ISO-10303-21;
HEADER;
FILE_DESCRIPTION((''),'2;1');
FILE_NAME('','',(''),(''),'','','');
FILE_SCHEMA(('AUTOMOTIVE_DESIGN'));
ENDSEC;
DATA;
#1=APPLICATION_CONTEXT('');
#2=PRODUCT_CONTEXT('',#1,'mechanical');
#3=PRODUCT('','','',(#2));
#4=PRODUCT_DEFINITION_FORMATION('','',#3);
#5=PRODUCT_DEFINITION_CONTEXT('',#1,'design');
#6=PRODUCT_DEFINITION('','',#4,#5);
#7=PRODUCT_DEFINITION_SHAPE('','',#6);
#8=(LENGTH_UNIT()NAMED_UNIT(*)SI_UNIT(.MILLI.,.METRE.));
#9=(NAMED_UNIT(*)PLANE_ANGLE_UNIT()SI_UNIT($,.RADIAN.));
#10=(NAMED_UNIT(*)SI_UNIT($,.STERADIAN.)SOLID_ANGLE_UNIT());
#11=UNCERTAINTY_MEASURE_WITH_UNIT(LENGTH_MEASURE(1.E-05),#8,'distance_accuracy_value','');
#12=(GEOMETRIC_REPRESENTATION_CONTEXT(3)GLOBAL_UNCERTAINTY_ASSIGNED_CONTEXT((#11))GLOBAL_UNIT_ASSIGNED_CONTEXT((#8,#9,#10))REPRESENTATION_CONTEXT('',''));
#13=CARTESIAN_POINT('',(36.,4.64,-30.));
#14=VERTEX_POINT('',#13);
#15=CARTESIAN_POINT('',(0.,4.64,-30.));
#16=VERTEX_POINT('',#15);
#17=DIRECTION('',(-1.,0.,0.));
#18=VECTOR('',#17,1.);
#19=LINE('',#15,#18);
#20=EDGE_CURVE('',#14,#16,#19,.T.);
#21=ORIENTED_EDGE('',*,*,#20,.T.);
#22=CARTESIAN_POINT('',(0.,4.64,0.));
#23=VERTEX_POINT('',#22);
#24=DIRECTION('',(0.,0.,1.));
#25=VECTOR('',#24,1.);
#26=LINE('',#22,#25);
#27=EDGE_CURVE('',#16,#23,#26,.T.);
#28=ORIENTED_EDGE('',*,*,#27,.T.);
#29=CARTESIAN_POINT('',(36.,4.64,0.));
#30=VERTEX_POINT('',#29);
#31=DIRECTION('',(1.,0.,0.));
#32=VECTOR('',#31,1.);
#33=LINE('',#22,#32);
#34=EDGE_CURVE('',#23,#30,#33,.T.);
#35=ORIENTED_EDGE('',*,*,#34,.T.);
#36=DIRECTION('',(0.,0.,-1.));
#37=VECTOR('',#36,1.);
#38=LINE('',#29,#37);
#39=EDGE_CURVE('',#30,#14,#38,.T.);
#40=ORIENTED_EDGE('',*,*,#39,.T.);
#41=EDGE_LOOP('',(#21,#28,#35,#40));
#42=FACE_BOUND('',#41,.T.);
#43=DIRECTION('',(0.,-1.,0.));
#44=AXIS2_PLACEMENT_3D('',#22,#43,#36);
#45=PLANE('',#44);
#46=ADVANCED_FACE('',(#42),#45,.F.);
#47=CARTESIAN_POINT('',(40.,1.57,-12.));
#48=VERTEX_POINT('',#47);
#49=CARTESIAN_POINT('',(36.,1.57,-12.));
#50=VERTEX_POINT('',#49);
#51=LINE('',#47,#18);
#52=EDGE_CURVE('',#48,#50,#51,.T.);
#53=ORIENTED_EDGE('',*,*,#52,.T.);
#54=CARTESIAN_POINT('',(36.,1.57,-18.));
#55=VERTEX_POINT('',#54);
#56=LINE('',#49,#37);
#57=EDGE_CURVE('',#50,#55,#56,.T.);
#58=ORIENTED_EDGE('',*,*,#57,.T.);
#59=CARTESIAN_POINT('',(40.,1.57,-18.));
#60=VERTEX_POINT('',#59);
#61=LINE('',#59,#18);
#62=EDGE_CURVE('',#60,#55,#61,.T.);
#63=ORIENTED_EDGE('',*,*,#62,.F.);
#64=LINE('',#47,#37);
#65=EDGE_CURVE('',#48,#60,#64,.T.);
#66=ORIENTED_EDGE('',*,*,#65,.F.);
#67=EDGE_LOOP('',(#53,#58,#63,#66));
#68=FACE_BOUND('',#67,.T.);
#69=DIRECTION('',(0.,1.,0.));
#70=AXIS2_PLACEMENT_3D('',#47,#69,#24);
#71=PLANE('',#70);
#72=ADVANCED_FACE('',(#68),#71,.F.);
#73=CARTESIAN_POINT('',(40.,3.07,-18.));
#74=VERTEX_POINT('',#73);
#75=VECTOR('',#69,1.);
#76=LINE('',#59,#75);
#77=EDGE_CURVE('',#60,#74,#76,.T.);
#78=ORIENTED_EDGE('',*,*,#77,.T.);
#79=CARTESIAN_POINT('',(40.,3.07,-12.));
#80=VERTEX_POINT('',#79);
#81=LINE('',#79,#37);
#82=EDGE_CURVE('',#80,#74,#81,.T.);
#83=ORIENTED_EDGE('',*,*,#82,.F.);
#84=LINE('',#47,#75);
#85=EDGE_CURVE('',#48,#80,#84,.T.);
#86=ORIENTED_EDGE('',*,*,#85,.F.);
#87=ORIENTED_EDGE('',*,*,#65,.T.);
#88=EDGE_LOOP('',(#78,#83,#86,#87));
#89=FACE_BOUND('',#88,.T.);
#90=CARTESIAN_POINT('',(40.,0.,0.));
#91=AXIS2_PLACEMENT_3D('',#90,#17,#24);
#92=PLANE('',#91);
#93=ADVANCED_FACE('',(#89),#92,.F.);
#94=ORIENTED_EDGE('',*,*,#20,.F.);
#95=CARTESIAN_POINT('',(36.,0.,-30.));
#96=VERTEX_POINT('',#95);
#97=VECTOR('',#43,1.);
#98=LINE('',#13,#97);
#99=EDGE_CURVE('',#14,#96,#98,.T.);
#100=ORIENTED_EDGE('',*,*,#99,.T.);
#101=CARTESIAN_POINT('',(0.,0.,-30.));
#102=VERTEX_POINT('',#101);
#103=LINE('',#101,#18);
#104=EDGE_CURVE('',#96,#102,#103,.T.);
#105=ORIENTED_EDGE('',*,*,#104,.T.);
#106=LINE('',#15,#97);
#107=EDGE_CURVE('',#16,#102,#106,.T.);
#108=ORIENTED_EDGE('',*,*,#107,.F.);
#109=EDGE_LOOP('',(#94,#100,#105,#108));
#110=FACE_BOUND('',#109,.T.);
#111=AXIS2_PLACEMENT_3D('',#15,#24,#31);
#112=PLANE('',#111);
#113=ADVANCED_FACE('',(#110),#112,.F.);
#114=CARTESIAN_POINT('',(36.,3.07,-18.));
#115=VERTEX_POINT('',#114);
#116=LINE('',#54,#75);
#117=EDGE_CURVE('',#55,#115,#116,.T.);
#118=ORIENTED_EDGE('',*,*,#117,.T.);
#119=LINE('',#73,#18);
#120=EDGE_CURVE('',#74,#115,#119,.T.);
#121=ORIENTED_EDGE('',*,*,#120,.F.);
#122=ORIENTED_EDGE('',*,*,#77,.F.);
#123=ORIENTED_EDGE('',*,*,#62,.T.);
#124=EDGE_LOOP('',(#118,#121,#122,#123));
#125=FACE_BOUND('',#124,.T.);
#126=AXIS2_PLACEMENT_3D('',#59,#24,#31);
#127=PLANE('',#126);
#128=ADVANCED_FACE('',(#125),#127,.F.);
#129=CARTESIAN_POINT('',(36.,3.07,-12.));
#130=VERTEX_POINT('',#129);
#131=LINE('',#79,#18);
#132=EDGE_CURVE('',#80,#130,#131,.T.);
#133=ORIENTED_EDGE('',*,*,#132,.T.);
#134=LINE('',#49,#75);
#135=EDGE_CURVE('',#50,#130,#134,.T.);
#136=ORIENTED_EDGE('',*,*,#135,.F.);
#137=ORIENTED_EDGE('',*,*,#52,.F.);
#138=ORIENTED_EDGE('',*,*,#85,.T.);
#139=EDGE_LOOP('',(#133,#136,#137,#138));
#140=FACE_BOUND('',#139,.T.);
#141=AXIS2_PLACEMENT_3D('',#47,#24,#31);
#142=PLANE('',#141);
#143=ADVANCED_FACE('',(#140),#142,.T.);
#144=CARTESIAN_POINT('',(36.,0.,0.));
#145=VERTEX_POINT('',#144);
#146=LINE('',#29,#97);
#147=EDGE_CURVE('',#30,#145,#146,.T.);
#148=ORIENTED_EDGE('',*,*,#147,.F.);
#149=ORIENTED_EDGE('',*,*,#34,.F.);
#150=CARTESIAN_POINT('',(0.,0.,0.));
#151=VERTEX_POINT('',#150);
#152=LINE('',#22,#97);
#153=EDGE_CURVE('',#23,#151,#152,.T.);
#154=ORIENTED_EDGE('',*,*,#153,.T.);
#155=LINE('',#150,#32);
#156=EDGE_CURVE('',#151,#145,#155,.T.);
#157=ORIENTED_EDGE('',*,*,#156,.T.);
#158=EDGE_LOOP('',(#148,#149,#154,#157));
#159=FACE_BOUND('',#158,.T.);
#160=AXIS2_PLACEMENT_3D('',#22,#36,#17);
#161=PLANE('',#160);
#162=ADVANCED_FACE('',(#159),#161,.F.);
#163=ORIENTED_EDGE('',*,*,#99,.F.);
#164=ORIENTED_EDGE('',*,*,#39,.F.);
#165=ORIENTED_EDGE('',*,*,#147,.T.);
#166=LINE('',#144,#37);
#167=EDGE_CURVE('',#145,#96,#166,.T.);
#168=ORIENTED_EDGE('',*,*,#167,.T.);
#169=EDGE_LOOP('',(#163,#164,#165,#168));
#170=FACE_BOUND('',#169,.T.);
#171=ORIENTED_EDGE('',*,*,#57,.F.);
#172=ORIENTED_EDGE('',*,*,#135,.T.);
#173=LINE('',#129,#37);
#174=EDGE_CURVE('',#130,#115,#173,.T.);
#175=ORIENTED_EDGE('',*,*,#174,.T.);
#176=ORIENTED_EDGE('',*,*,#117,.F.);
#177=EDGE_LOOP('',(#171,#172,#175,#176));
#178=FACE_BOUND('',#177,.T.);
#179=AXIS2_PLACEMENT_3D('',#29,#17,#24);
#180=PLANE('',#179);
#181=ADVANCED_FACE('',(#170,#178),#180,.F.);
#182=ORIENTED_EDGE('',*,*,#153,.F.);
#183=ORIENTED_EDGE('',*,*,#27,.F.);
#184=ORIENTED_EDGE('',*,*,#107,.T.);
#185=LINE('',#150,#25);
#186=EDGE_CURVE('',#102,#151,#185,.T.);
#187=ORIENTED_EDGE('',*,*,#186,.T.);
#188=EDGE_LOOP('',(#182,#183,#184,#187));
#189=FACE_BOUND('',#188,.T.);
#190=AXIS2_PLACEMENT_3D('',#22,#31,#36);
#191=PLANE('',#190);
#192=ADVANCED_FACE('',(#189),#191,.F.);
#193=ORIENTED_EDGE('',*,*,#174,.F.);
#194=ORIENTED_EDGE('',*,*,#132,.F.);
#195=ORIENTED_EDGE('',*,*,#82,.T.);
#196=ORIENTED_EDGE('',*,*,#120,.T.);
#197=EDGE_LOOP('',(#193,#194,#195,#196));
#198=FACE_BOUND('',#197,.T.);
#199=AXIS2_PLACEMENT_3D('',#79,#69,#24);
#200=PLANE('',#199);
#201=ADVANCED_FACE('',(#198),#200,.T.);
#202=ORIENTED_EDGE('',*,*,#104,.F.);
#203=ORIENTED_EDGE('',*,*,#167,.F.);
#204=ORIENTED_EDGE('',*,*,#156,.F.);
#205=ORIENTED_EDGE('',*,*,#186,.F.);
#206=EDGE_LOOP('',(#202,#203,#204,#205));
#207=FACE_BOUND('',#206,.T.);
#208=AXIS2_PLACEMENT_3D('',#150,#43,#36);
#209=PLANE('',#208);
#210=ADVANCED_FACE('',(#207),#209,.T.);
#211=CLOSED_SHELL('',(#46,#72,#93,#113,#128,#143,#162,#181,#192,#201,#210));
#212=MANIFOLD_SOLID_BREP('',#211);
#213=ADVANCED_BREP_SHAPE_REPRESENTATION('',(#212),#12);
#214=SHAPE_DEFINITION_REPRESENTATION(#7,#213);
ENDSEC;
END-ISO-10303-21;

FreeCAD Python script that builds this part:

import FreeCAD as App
import Part
import Sketcher

doc = App.newDocument("Part")
body = doc.addObject("PartDesign::Body", "Body")

# Sketch on XZ plane
sketch1 = doc.addObject("Sketcher::SketchObject", "Sketch")
body.addObject(sketch1)
sketch1.AttachmentSupport = (doc.XZ_Plane, [""])
sketch1.MapMode = "FlatFace"
sketch1.addGeometry([
    Part.LineSegment(App.Vector(0, -30, 0), App.Vector(0, 0, 0)),
    Part.LineSegment(App.Vector(0, 0, 0), App.Vector(36, 0, 0)),
    Part.LineSegment(App.Vector(36, 0, 0), App.Vector(36, -30, 0)),
    Part.LineSegment(App.Vector(36, -30, 0), App.Vector(0, -30, 0)),
], False)
sketch1.addConstraint([
    Sketcher.Constraint("Coincident", 0, 2, 1, 1),
    Sketcher.Constraint("Coincident", 1, 2, 2, 1),
    Sketcher.Constraint("Coincident", 2, 2, 3, 1),
    Sketcher.Constraint("Coincident", 3, 2, 0, 1),
    Sketcher.Constraint("Vertical", 0),
    Sketcher.Constraint("Horizontal", 1),
    Sketcher.Constraint("Vertical", 2),
    Sketcher.Constraint("Horizontal", 3),
    Sketcher.Constraint("Coincident", 0, 2, -1, 1),
    Sketcher.Constraint("DistanceX", 1, 1, 1, 2, 36.0),
    Sketcher.Constraint("DistanceY", 0, 1, 0, 2, 30.0),
])
pad1 = doc.addObject("PartDesign::Pad", "Pad")
body.addObject(pad1)
pad1.Profile = sketch1
pad1.Length = 4.64
pad1.Reversed = True

# Sketch on YZ plane
sketch2 = doc.addObject("Sketcher::SketchObject", "Sketch001")
body.addObject(sketch2)
sketch2.AttachmentSupport = (doc.YZ_Plane, [""])
sketch2.MapMode = "FlatFace"
sketch2.AttachmentOffset = App.Placement(App.Vector(0, 0, 36), App.Rotation())
sketch2.addGeometry([
    Part.LineSegment(App.Vector(3.1, -12, 0), App.Vector(1.6, -12, 0)),
    Part.LineSegment(App.Vector(1.6, -12, 0), App.Vector(1.6, -18, 0)),
    Part.LineSegment(App.Vector(1.6, -18, 0), App.Vector(3.1, -18, 0)),
    Part.LineSegment(App.Vector(3.1, -18, 0), App.Vector(3.1, -12, 0)),
], False)
sketch2.addConstraint([
    Sketcher.Constraint("Coincident", 0, 2, 1, 1),
    Sketcher.Constraint("Coincident", 1, 2, 2, 1),
    Sketcher.Constraint("Coincident", 2, 2, 3, 1),
    Sketcher.Constraint("Coincident", 3, 2, 0, 1),
    Sketcher.Constraint("Horizontal", 0),
    Sketcher.Constraint("Vertical", 1),
    Sketcher.Constraint("Horizontal", 2),
    Sketcher.Constraint("Vertical", 3),
    Sketcher.Constraint("DistanceY", 1, 2, 1, 1, 6.0),
    Sketcher.Constraint("DistanceX", 0, 2, 0, 1, 1.5),
    Sketcher.Constraint("DistanceY", 0, 2, -1, 1, 12.0),
    Sketcher.Constraint("DistanceX", -1, 1, 0, 2, 1.57),
])
pad2 = doc.addObject("PartDesign::Pad", "Pad001")
body.addObject(pad2)
pad2.Profile = sketch2
pad2.Length = 4

doc.recompute()
